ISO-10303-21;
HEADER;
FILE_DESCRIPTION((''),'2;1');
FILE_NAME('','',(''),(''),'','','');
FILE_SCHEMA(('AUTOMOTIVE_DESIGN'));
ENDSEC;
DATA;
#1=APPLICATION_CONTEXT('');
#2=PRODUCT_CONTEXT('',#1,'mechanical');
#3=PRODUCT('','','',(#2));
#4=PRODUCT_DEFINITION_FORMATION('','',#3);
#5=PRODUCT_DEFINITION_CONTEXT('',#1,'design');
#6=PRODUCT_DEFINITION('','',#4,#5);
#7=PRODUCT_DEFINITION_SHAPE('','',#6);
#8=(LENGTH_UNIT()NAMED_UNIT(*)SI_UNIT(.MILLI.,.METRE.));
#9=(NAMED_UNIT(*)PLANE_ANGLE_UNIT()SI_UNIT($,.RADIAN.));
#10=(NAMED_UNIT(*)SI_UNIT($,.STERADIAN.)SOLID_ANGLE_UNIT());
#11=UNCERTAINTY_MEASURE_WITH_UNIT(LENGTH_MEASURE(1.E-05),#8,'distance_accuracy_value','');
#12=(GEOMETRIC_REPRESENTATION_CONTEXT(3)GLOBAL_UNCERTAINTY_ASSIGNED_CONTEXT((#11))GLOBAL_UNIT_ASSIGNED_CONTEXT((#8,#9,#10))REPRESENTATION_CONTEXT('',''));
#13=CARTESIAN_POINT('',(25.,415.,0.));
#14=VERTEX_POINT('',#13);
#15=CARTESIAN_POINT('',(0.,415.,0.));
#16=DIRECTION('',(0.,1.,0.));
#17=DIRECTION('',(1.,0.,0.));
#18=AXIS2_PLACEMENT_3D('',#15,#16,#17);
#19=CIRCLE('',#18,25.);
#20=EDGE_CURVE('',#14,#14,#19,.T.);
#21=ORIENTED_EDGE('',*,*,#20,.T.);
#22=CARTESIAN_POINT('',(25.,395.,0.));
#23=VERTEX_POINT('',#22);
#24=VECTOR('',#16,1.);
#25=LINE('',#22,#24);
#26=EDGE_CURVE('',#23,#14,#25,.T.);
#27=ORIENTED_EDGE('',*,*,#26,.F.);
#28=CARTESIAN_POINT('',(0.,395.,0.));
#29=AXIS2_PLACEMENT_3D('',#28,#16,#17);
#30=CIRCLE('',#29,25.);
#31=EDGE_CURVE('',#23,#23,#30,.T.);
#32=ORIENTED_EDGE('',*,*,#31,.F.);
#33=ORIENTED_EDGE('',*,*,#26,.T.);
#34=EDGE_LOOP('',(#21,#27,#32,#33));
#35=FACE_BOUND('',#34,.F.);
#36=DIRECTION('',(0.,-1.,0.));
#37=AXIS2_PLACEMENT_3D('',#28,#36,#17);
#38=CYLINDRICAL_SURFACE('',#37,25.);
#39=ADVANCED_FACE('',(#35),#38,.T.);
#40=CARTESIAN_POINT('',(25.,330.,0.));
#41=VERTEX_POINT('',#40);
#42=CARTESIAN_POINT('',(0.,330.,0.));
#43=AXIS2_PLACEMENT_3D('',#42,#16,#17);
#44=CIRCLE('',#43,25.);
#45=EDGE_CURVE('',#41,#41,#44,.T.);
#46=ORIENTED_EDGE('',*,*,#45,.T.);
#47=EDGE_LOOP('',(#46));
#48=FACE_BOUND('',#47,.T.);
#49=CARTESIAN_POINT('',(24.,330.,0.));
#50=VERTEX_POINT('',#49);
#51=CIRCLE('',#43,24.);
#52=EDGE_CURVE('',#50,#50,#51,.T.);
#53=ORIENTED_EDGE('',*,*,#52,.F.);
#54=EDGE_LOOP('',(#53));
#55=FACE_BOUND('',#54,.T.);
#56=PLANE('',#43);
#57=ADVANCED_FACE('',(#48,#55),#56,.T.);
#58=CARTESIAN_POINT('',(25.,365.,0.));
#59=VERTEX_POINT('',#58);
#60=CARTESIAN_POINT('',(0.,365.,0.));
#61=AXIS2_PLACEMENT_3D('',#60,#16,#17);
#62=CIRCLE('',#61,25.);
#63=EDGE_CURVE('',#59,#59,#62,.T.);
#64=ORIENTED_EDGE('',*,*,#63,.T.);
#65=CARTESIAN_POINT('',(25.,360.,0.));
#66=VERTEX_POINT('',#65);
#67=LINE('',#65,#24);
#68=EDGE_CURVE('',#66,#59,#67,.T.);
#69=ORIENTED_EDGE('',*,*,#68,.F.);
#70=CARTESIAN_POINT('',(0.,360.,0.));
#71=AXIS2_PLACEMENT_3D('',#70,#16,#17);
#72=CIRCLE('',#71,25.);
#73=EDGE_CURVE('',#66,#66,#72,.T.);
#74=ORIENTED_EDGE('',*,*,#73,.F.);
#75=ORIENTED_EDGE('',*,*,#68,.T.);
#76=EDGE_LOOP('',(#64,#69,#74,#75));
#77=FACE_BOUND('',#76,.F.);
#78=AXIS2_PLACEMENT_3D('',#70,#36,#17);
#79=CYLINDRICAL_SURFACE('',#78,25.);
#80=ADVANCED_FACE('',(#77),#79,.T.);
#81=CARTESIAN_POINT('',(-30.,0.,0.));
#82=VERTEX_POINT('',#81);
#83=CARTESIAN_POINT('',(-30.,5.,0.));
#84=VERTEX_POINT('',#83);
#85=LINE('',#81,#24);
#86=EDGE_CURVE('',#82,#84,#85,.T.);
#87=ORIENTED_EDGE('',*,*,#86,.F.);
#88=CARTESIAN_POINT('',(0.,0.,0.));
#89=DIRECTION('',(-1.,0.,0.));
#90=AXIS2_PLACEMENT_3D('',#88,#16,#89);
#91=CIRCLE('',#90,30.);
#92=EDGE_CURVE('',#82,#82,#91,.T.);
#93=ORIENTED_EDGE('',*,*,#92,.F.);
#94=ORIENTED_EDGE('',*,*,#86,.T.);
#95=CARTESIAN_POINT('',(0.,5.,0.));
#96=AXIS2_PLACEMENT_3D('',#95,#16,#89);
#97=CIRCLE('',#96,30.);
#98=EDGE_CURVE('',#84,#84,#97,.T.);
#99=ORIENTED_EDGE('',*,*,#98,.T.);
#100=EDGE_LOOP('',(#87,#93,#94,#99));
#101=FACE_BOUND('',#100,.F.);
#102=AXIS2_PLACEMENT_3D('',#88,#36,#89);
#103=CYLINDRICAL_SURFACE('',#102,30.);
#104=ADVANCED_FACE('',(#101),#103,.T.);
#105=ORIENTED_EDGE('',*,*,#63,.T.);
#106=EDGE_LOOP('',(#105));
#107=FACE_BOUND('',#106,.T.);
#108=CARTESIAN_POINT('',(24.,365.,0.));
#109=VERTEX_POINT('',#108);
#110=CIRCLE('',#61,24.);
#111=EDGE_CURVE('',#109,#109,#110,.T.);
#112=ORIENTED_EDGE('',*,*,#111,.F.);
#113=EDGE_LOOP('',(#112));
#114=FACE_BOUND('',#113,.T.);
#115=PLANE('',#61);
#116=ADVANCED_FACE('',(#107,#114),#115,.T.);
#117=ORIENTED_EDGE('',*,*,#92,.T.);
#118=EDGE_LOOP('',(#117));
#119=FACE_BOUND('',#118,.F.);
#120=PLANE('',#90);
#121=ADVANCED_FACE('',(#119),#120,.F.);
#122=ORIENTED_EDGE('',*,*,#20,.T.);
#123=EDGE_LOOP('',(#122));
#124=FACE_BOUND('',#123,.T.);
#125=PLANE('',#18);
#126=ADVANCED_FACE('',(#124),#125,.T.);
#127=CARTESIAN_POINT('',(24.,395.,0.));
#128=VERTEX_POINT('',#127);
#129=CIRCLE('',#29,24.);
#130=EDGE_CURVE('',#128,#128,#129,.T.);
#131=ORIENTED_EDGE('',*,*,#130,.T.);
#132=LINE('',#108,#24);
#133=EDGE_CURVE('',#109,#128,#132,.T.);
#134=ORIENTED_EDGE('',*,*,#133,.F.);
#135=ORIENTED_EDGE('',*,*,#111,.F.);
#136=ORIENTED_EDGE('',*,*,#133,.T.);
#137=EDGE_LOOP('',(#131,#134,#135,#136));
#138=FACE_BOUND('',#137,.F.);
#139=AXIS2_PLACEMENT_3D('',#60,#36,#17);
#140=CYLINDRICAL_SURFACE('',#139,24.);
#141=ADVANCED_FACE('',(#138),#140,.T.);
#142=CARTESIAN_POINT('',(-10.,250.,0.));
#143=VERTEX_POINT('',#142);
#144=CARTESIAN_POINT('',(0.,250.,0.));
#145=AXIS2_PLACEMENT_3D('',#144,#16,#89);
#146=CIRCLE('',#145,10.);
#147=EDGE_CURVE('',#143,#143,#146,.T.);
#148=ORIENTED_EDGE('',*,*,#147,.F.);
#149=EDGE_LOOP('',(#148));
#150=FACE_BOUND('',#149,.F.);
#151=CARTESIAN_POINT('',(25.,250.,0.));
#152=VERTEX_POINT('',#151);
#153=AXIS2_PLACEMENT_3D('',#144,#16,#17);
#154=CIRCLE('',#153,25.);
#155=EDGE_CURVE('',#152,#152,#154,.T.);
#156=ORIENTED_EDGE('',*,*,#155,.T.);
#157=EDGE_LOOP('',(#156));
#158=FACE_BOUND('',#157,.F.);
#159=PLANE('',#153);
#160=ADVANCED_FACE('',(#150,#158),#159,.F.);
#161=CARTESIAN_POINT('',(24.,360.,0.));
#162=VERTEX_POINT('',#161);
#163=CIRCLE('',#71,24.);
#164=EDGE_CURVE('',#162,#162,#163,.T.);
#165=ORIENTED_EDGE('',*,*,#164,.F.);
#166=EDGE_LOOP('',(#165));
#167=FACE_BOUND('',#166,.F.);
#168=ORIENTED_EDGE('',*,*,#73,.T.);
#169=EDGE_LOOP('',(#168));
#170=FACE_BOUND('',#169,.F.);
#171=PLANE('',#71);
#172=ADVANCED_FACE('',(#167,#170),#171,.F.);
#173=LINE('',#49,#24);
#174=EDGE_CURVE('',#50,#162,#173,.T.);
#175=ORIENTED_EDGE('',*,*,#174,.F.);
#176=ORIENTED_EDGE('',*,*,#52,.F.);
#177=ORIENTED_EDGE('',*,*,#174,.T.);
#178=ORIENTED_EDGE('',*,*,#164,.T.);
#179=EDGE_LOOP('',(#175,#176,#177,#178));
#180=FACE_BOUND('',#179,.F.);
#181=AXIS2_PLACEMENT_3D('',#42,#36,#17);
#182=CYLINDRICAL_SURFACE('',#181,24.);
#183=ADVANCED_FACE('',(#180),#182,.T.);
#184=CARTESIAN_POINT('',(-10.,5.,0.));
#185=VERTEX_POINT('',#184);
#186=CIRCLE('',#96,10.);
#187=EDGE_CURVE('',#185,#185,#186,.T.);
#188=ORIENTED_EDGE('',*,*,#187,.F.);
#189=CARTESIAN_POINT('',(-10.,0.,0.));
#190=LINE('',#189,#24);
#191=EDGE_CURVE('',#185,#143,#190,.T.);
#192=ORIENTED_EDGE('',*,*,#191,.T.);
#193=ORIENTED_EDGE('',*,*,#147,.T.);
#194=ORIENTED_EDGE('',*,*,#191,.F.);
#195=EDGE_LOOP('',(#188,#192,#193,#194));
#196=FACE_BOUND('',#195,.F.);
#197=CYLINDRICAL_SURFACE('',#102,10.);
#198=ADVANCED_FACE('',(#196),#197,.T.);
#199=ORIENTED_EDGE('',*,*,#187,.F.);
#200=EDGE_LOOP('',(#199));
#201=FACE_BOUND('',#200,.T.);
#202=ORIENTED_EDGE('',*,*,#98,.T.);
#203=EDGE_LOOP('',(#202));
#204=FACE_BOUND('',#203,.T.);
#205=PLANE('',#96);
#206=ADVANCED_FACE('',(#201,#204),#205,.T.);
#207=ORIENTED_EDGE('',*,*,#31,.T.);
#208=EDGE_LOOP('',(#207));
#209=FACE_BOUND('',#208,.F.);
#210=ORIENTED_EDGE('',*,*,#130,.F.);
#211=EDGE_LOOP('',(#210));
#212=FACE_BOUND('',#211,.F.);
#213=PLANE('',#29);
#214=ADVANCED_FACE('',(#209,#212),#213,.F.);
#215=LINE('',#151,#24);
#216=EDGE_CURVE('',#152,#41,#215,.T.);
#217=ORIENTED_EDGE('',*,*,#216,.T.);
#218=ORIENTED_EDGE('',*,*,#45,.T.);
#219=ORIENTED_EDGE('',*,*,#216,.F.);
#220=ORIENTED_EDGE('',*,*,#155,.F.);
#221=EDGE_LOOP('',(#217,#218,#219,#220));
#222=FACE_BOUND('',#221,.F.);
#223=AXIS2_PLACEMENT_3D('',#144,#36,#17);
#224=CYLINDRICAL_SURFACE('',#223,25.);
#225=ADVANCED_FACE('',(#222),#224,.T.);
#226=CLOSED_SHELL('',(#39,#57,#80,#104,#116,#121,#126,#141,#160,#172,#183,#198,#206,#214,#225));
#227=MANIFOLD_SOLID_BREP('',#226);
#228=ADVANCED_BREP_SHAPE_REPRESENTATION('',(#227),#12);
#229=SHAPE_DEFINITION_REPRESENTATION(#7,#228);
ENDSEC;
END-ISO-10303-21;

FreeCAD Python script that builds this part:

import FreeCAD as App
import Part
import Sketcher
from FreeCAD import Vector

doc = App.newDocument("Part")
params = doc.addObject("Spreadsheet::Sheet", "Params")
for row, (alias, value) in enumerate([
    ("sketch1_diameter", "60 mm"),
    ("sketch1_diameter2", "20 mm"),
    ("pad1_length", "5 mm"),
    ("sketch2_diameter", "20 mm"),
    ("pad2_length", "250 mm"),
    ("sketch3_diameter", "50 mm"),
    ("pad3_length", "80 mm"),
    ("sketch4_diameter", "48 mm"),
    ("pad4_length", "30 mm"),
    ("sketch5_diameter", "50 mm"),
    ("pad5_length", "5 mm"),
    ("sketch6_diameter", "48 mm"),
    ("pad6_length", "30 mm"),
    ("sketch7_diameter", "50 mm"),
    ("pad7_length", "20 mm"),
], start=1):
    params.set(f"A{row}", alias)
    params.set(f"B{row}", "=" + value)
    params.setAlias(f"B{row}", alias)

body = doc.addObject("PartDesign::Body", "Body")

# Sketch on XZ plane
sketch1 = body.newObject("Sketcher::SketchObject", "Sketch")
sketch1.AttachmentSupport = (doc.getObject("XZ_Plane"), [""])
sketch1.MapMode = "FlatFace"
sketch1.addGeometry(Part.Circle(Vector(0, 0, 0), Vector(0, 0, 1), 30), False)
sketch1.addGeometry(Part.Circle(Vector(0, 0, 0), Vector(0, 0, 1), 10), False)
sketch1.addConstraint(Sketcher.Constraint("Coincident", 0, 3, -1, 1))
sketch1.addConstraint(Sketcher.Constraint("Coincident", 1, 3, -1, 1))
sketch1.addConstraint(Sketcher.Constraint("Diameter", 0, 60.0))
sketch1.addConstraint(Sketcher.Constraint("Diameter", 1, 20.0))
sketch1.setExpression("Constraints[2]", "Params.sketch1_diameter")
sketch1.setExpression("Constraints[3]", "Params.sketch1_diameter2")
pad1 = body.newObject("PartDesign::Pad", "Pad")
pad1.Profile = sketch1
pad1.setExpression("Length", "Params.pad1_length")
pad1.Reversed = True

# Sketch on XZ plane
sketch2 = body.newObject("Sketcher::SketchObject", "Sketch001")
sketch2.AttachmentSupport = (doc.getObject("XZ_Plane"), [""])
sketch2.MapMode = "FlatFace"
sketch2.addGeometry(Part.Circle(Vector(0, 0, 0), Vector(0, 0, 1), 10), False)
sketch2.addConstraint(Sketcher.Constraint("Coincident", 0, 3, -1, 1))
sketch2.addConstraint(Sketcher.Constraint("Diameter", 0, 20.0))
sketch2.setExpression("Constraints[1]", "Params.sketch2_diameter")
pad2 = body.newObject("PartDesign::Pad", "Pad001")
pad2.Profile = sketch2
pad2.setExpression("Length", "Params.pad2_length")
pad2.Reversed = True

# Sketch on XZ plane
sketch3 = body.newObject("Sketcher::SketchObject", "Sketch002")
sketch3.AttachmentSupport = (doc.getObject("XZ_Plane"), [""])
sketch3.MapMode = "FlatFace"
sketch3.AttachmentOffset = App.Placement(Vector(0, 0, -250), App.Rotation())
sketch3.addGeometry(Part.Circle(Vector(0, 0, 0), Vector(0, 0, 1), 25), False)
sketch3.addConstraint(Sketcher.Constraint("Coincident", 0, 3, -1, 1))
sketch3.addConstraint(Sketcher.Constraint("Diameter", 0, 50.0))
sketch3.setExpression("Constraints[1]", "Params.sketch3_diameter")
pad3 = body.newObject("PartDesign::Pad", "Pad002")
pad3.Profile = sketch3
pad3.setExpression("Length", "Params.pad3_length")
pad3.Reversed = True

# Sketch on XZ plane
sketch4 = body.newObject("Sketcher::SketchObject", "Sketch003")
sketch4.AttachmentSupport = (doc.getObject("XZ_Plane"), [""])
sketch4.MapMode = "FlatFace"
sketch4.AttachmentOffset = App.Placement(Vector(0, 0, -330), App.Rotation())
sketch4.addGeometry(Part.Circle(Vector(0, 0, 0), Vector(0, 0, 1), 24), False)
sketch4.addConstraint(Sketcher.Constraint("Coincident", 0, 3, -1, 1))
sketch4.addConstraint(Sketcher.Constraint("Diameter", 0, 48.0))
sketch4.setExpression("Constraints[1]", "Params.sketch4_diameter")
pad4 = body.newObject("PartDesign::Pad", "Pad003")
pad4.Profile = sketch4
pad4.setExpression("Length", "Params.pad4_length")
pad4.Reversed = True

# Sketch on XZ plane
sketch5 = body.newObject("Sketcher::SketchObject", "Sketch004")
sketch5.AttachmentSupport = (doc.getObject("XZ_Plane"), [""])
sketch5.MapMode = "FlatFace"
sketch5.AttachmentOffset = App.Placement(Vector(0, 0, -360), App.Rotation())
sketch5.addGeometry(Part.Circle(Vector(0, 0, 0), Vector(0, 0, 1), 25), False)
sketch5.addConstraint(Sketcher.Constraint("Coincident", 0, 3, -1, 1))
sketch5.addConstraint(Sketcher.Constraint("Diameter", 0, 50.0))
sketch5.setExpression("Constraints[1]", "Params.sketch5_diameter")
pad5 = body.newObject("PartDesign::Pad", "Pad004")
pad5.Profile = sketch5
pad5.setExpression("Length", "Params.pad5_length")
pad5.Reversed = True

# Sketch on XZ plane
sketch6 = body.newObject("Sketcher::SketchObject", "Sketch005")
sketch6.AttachmentSupport = (doc.getObject("XZ_Plane"), [""])
sketch6.MapMode = "FlatFace"
sketch6.AttachmentOffset = App.Placement(Vector(0, 0, -365), App.Rotation())
sketch6.addGeometry(Part.Circle(Vector(0, 0, 0), Vector(0, 0, 1), 24), False)
sketch6.addConstraint(Sketcher.Constraint("Coincident", 0, 3, -1, 1))
sketch6.addConstraint(Sketcher.Constraint("Diameter", 0, 48.0))
sketch6.setExpression("Constraints[1]", "Params.sketch6_diameter")
pad6 = body.newObject("PartDesign::Pad", "Pad005")
pad6.Profile = sketch6
pad6.setExpression("Length", "Params.pad6_length")
pad6.Reversed = True

# Sketch on XZ plane
sketch7 = body.newObject("Sketcher::SketchObject", "Sketch006")
sketch7.AttachmentSupport = (doc.getObject("XZ_Plane"), [""])
sketch7.MapMode = "FlatFace"
sketch7.AttachmentOffset = App.Placement(Vector(0, 0, -395), App.Rotation())
sketch7.addGeometry(Part.Circle(Vector(0, 0, 0), Vector(0, 0, 1), 25), False)
sketch7.addConstraint(Sketcher.Constraint("Coincident", 0, 3, -1, 1))
sketch7.addConstraint(Sketcher.Constraint("Diameter", 0, 50.0))
sketch7.setExpression("Constraints[1]", "Params.sketch7_diameter")
pad7 = body.newObject("PartDesign::Pad", "Pad006")
pad7.Profile = sketch7
pad7.setExpression("Length", "Params.pad7_length")
pad7.Reversed = True

doc.recompute()
